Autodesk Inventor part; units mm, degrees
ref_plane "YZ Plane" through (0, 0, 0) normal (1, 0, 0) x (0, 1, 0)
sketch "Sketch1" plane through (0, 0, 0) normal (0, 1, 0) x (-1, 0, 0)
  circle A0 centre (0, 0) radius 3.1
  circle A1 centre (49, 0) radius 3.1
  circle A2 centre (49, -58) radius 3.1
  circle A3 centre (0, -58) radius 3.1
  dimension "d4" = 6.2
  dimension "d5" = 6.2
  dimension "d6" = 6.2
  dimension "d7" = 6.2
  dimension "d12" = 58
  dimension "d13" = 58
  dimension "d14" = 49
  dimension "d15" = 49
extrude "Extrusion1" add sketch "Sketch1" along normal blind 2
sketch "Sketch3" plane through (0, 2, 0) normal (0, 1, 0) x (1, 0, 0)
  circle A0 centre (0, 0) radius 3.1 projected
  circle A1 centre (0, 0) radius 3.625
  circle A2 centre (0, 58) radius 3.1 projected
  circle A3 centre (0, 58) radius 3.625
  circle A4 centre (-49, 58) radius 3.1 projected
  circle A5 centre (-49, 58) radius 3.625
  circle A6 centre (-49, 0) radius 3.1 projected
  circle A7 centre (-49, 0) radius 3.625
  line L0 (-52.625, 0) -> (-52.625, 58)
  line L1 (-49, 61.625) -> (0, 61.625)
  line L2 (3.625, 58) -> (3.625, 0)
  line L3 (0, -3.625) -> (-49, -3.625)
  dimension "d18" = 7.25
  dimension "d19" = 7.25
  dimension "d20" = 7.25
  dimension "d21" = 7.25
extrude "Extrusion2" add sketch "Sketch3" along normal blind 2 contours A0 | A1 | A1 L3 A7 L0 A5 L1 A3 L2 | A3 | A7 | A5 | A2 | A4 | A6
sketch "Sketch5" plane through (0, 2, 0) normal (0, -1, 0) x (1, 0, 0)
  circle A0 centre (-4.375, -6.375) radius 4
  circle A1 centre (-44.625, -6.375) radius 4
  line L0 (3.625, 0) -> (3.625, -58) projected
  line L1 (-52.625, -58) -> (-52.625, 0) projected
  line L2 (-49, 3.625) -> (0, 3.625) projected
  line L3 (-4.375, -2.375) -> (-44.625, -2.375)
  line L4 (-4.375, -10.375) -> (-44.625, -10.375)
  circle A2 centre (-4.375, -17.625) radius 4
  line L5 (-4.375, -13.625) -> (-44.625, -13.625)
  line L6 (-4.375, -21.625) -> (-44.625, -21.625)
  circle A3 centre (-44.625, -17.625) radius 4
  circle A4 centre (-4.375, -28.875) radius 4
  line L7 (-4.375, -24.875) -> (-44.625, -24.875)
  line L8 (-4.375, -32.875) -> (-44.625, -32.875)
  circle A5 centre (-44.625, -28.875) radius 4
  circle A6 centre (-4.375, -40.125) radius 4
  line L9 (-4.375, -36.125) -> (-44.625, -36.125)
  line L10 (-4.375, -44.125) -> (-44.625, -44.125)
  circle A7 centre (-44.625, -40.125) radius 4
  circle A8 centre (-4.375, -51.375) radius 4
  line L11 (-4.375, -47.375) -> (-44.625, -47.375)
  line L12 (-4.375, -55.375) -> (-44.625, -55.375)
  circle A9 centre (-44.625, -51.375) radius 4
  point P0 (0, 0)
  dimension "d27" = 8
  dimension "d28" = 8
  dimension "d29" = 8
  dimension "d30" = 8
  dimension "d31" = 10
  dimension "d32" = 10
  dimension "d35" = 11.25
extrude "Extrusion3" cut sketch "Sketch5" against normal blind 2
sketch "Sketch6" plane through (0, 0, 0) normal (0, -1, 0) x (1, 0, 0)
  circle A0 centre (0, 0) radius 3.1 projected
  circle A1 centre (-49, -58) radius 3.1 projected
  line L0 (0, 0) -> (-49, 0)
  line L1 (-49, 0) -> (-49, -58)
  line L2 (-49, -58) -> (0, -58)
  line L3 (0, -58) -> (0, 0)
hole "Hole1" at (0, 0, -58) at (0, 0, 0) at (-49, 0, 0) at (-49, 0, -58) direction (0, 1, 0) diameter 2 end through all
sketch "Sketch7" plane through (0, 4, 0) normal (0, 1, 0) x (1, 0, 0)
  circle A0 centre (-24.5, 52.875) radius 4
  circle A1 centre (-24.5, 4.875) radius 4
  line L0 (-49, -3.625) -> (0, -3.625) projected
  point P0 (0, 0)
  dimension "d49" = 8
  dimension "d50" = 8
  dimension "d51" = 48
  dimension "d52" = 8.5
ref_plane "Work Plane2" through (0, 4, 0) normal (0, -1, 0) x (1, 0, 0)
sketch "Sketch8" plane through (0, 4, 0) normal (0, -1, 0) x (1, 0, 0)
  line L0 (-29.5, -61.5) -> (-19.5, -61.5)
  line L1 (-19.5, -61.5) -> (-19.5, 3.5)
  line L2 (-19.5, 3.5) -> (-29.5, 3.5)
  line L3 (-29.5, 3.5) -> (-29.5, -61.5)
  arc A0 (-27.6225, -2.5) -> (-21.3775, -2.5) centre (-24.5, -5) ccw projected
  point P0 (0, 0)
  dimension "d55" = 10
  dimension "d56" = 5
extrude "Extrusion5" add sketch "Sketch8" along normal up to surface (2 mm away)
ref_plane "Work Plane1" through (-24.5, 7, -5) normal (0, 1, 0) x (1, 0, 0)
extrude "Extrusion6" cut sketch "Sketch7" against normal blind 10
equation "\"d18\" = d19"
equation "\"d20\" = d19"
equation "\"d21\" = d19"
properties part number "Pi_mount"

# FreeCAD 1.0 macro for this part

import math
import FreeCAD as App
import Part
import Sketcher
Q = App.Units.Quantity


def add_polygon(sketch, points):
    """Adds a closed chain of lines whose ends are joined by coincident constraints."""
    first, n = sketch.GeometryCount, len(points)
    for a, b in zip(points, points[1:] + points[:1]):
        sketch.addGeometry(Part.LineSegment(App.Vector(*a, 0), App.Vector(*b, 0)), False)
    for i in range(n):
        sketch.addConstraint(Sketcher.Constraint("Coincident", first + i, 2, first + (i + 1) % n, 1))

doc = App.newDocument("Part")
body = doc.addObject("PartDesign::Body", "Body")
body.AllowCompound = True

sketch1 = doc.addObject("Sketcher::SketchObject", "Sketch")
body.addObject(sketch1)
sketch1.AttachmentSupport = (doc.XZ_Plane, [""])
sketch1.MapMode = "FlatFace"
sketch1.addGeometry(Part.Circle(App.Vector(0, 0, 0), App.Vector(0, 0, 1), 3.1), False)
sketch1.addGeometry(Part.Circle(App.Vector(-49, 0, 0), App.Vector(0, 0, 1), 3.1), False)
sketch1.addGeometry(Part.Circle(App.Vector(-49, -58, 0), App.Vector(0, 0, 1), 3.1), False)
sketch1.addGeometry(Part.Circle(App.Vector(0, -58, 0), App.Vector(0, 0, 1), 3.1), False)
sketch1.addConstraint(Sketcher.Constraint("Coincident", 0, 3, -1, 1))
sketch1.addConstraint(Sketcher.Constraint("Equal", 0, 1))
sketch1.addConstraint(Sketcher.Constraint("Equal", 1, 2))
sketch1.addConstraint(Sketcher.Constraint("Equal", 2, 3))
sketch1.addConstraint(Sketcher.Constraint("PointOnObject", 1, 3, -1))
sketch1.addConstraint(Sketcher.Constraint("PointOnObject", 3, 3, -2))
sketch1.addConstraint(Sketcher.Constraint("Horizontal", 2, 3, 3, 3))
sketch1.addConstraint(Sketcher.Constraint("Vertical", 1, 3, 2, 3))
sketch1.addConstraint(Sketcher.Constraint("Diameter", 0, Q("6.2 mm")))
sketch1.addConstraint(Sketcher.Constraint("DistanceX", 1, 3, -1, 1, Q("49 mm")))
sketch1.addConstraint(Sketcher.Constraint("DistanceY", 2, 3, -1, 1, Q("58 mm")))
pad1 = doc.addObject("PartDesign::Pad", "Pad")
body.addObject(pad1)
pad1.Profile = sketch1
pad1.Length = 2
pad1.Reversed = True

sketch2 = doc.addObject("Sketcher::SketchObject", "Sketch001")
body.addObject(sketch2)
sketch2.AttachmentSupport = (doc.XZ_Plane, [""])
sketch2.MapMode = "FlatFace"
sketch2.AttachmentOffset = App.Placement(App.Vector(0, 0, -2), App.Rotation())
sketch2.addGeometry(Part.ArcOfCircle(Part.Circle(App.Vector(0, 0, 0), App.Vector(0, 0, 1), 3.625), math.radians(0), math.radians(90)), False)
sketch2.addGeometry(Part.LineSegment(App.Vector(3.625, 0, 0), App.Vector(3.625, -58, 0)), False)
sketch2.addGeometry(Part.ArcOfCircle(Part.Circle(App.Vector(0, -58, 0), App.Vector(0, 0, 1), 3.625), math.radians(-90), math.radians(0)), False)
sketch2.addGeometry(Part.LineSegment(App.Vector(0, -61.625, 0), App.Vector(-49, -61.625, 0)), False)
sketch2.addGeometry(Part.ArcOfCircle(Part.Circle(App.Vector(-49, -58, 0), App.Vector(0, 0, 1), 3.625), math.radians(180), math.radians(270)), False)
sketch2.addGeometry(Part.LineSegment(App.Vector(-52.625, -58, 0), App.Vector(-52.625, 0, 0)), False)
sketch2.addGeometry(Part.ArcOfCircle(Part.Circle(App.Vector(-49, 0, 0), App.Vector(0, 0, 1), 3.625), math.radians(90), math.radians(180)), False)
sketch2.addGeometry(Part.LineSegment(App.Vector(-49, 3.625, 0), App.Vector(0, 3.625, 0)), False)
sketch2.addConstraint(Sketcher.Constraint("Tangent", 0, 1, 1, 1))
sketch2.addConstraint(Sketcher.Constraint("Tangent", 1, 2, 2, 2))
sketch2.addConstraint(Sketcher.Constraint("Tangent", 2, 1, 3, 1))
sketch2.addConstraint(Sketcher.Constraint("Tangent", 3, 2, 4, 2))
sketch2.addConstraint(Sketcher.Constraint("Tangent", 4, 1, 5, 1))
sketch2.addConstraint(Sketcher.Constraint("Tangent", 5, 2, 6, 2))
sketch2.addConstraint(Sketcher.Constraint("Tangent", 6, 1, 7, 1))
sketch2.addConstraint(Sketcher.Constraint("Tangent", 7, 2, 0, 2))
sketch2.addConstraint(Sketcher.Constraint("Vertical", 1))
sketch2.addConstraint(Sketcher.Constraint("Horizontal", 3))
sketch2.addConstraint(Sketcher.Constraint("Vertical", 5))
sketch2.addConstraint(Sketcher.Constraint("Horizontal", 7))
sketch2.addConstraint(Sketcher.Constraint("Coincident", 0, 3, -1, 1))
sketch2.addConstraint(Sketcher.Constraint("Equal", 0, 2))
sketch2.addConstraint(Sketcher.Constraint("Equal", 2, 4))
sketch2.addConstraint(Sketcher.Constraint("Equal", 4, 6))
sketch2.addConstraint(Sketcher.Constraint("Radius", 0, Q("3.625 mm")))
sketch2.addConstraint(Sketcher.Constraint("DistanceX", 3, 2, 3, 1, Q("49 mm")))
sketch2.addConstraint(Sketcher.Constraint("DistanceY", 1, 2, 1, 1, Q("58 mm")))
pad2 = doc.addObject("PartDesign::Pad", "Pad001")
body.addObject(pad2)
pad2.Profile = sketch2
pad2.Length = 2
pad2.Reversed = True

sketch3 = doc.addObject("Sketcher::SketchObject", "Sketch002")
body.addObject(sketch3)
sketch3.AttachmentSupport = (doc.XZ_Plane, [""])
sketch3.MapMode = "FlatFace"
sketch3.AttachmentOffset = App.Placement(App.Vector(0, 0, -2), App.Rotation())
sketch3.addGeometry(Part.ArcOfCircle(Part.Circle(App.Vector(-4.375, -6.375, 0), App.Vector(0, 0, 1), 4), math.radians(-90), math.radians(90)), False)
sketch3.addGeometry(Part.LineSegment(App.Vector(-4.375, -2.375, 0), App.Vector(-44.625, -2.375, 0)), False)
sketch3.addGeometry(Part.ArcOfCircle(Part.Circle(App.Vector(-44.625, -6.375, 0), App.Vector(0, 0, 1), 4), math.radians(90), math.radians(270)), False)
sketch3.addGeometry(Part.LineSegment(App.Vector(-44.625, -10.375, 0), App.Vector(-4.375, -10.375, 0)), False)
sketch3.addGeometry(Part.ArcOfCircle(Part.Circle(App.Vector(-4.375, -17.625, 0), App.Vector(0, 0, 1), 4), math.radians(-90), math.radians(90)), False)
sketch3.addGeometry(Part.LineSegment(App.Vector(-4.375, -13.625, 0), App.Vector(-44.625, -13.625, 0)), False)
sketch3.addGeometry(Part.ArcOfCircle(Part.Circle(App.Vector(-44.625, -17.625, 0), App.Vector(0, 0, 1), 4), math.radians(90), math.radians(270)), False)
sketch3.addGeometry(Part.LineSegment(App.Vector(-44.625, -21.625, 0), App.Vector(-4.375, -21.625, 0)), False)
sketch3.addGeometry(Part.ArcOfCircle(Part.Circle(App.Vector(-4.375, -28.875, 0), App.Vector(0, 0, 1), 4), math.radians(-90), math.radians(90)), False)
sketch3.addGeometry(Part.LineSegment(App.Vector(-4.375, -24.875, 0), App.Vector(-44.625, -24.875, 0)), False)
sketch3.addGeometry(Part.ArcOfCircle(Part.Circle(App.Vector(-44.625, -28.875, 0), App.Vector(0, 0, 1), 4), math.radians(90), math.radians(270)), False)
sketch3.addGeometry(Part.LineSegment(App.Vector(-44.625, -32.875, 0), App.Vector(-4.375, -32.875, 0)), False)
sketch3.addGeometry(Part.ArcOfCircle(Part.Circle(App.Vector(-4.375, -40.125, 0), App.Vector(0, 0, 1), 4), math.radians(-90), math.radians(90)), False)
sketch3.addGeometry(Part.LineSegment(App.Vector(-4.375, -36.125, 0), App.Vector(-44.625, -36.125, 0)), False)
sketch3.addGeometry(Part.ArcOfCircle(Part.Circle(App.Vector(-44.625, -40.125, 0), App.Vector(0, 0, 1), 4), math.radians(90), math.radians(270)), False)
sketch3.addGeometry(Part.LineSegment(App.Vector(-44.625, -44.125, 0), App.Vector(-4.375, -44.125, 0)), False)
sketch3.addGeometry(Part.ArcOfCircle(Part.Circle(App.Vector(-4.375, -51.375, 0), App.Vector(0, 0, 1), 4), math.radians(-90), math.radians(90)), False)
sketch3.addGeometry(Part.LineSegment(App.Vector(-4.375, -47.375, 0), App.Vector(-44.625, -47.375, 0)), False)
sketch3.addGeometry(Part.ArcOfCircle(Part.Circle(App.Vector(-44.625, -51.375, 0), App.Vector(0, 0, 1), 4), math.radians(90), math.radians(270)), False)
sketch3.addGeometry(Part.LineSegment(App.Vector(-44.625, -55.375, 0), App.Vector(-4.375, -55.375, 0)), False)
sketch3.addConstraint(Sketcher.Constraint("Tangent", 0, 2, 1, 1))
sketch3.addConstraint(Sketcher.Constraint("Tangent", 1, 2, 2, 1))
sketch3.addConstraint(Sketcher.Constraint("Tangent", 2, 2, 3, 1))
sketch3.addConstraint(Sketcher.Constraint("Tangent", 3, 2, 0, 1))
sketch3.addConstraint(Sketcher.Constraint("Tangent", 4, 2, 5, 1))
sketch3.addConstraint(Sketcher.Constraint("Tangent", 5, 2, 6, 1))
sketch3.addConstraint(Sketcher.Constraint("Tangent", 6, 2, 7, 1))
sketch3.addConstraint(Sketcher.Constraint("Tangent", 7, 2, 4, 1))
sketch3.addConstraint(Sketcher.Constraint("Tangent", 8, 2, 9, 1))
sketch3.addConstraint(Sketcher.Constraint("Tangent", 9, 2, 10, 1))
sketch3.addConstraint(Sketcher.Constraint("Tangent", 10, 2, 11, 1))
sketch3.addConstraint(Sketcher.Constraint("Tangent", 11, 2, 8, 1))
sketch3.addConstraint(Sketcher.Constraint("Tangent", 12, 2, 13, 1))
sketch3.addConstraint(Sketcher.Constraint("Tangent", 13, 2, 14, 1))
sketch3.addConstraint(Sketcher.Constraint("Tangent", 14, 2, 15, 1))
sketch3.addConstraint(Sketcher.Constraint("Tangent", 15, 2, 12, 1))
sketch3.addConstraint(Sketcher.Constraint("Tangent", 16, 2, 17, 1))
sketch3.addConstraint(Sketcher.Constraint("Tangent", 17, 2, 18, 1))
sketch3.addConstraint(Sketcher.Constraint("Tangent", 18, 2, 19, 1))
sketch3.addConstraint(Sketcher.Constraint("Tangent", 19, 2, 16, 1))
sketch3.addConstraint(Sketcher.Constraint("Horizontal", 1))
sketch3.addConstraint(Sketcher.Constraint("Horizontal", 3))
sketch3.addConstraint(Sketcher.Constraint("Horizontal", 5))
sketch3.addConstraint(Sketcher.Constraint("Horizontal", 7))
sketch3.addConstraint(Sketcher.Constraint("Horizontal", 9))
sketch3.addConstraint(Sketcher.Constraint("Horizontal", 11))
sketch3.addConstraint(Sketcher.Constraint("Horizontal", 13))
sketch3.addConstraint(Sketcher.Constraint("Horizontal", 15))
sketch3.addConstraint(Sketcher.Constraint("Horizontal", 17))
sketch3.addConstraint(Sketcher.Constraint("Horizontal", 19))
sketch3.addConstraint(Sketcher.Constraint("Equal", 2, 4))
sketch3.addConstraint(Sketcher.Constraint("Equal", 6, 8))
sketch3.addConstraint(Sketcher.Constraint("Equal", 10, 12))
sketch3.addConstraint(Sketcher.Constraint("Equal", 14, 16))
sketch3.addConstraint(Sketcher.Constraint("Vertical", 0, 3, 4, 3))
sketch3.addConstraint(Sketcher.Constraint("Vertical", 2, 3, 6, 3))
sketch3.addConstraint(Sketcher.Constraint("Vertical", 4, 3, 8, 3))
sketch3.addConstraint(Sketcher.Constraint("Vertical", 6, 3, 10, 3))
sketch3.addConstraint(Sketcher.Constraint("Vertical", 8, 3, 12, 3))
sketch3.addConstraint(Sketcher.Constraint("Vertical", 10, 3, 14, 3))
sketch3.addConstraint(Sketcher.Constraint("Vertical", 12, 3, 16, 3))
sketch3.addConstraint(Sketcher.Constraint("Vertical", 14, 3, 18, 3))
sketch3.addConstraint(Sketcher.Constraint("Radius", 0, Q("4 mm")))
sketch3.addConstraint(Sketcher.Constraint("DistanceY", 4, 3, 0, 3, Q("11.25 mm")))
sketch3.addConstraint(Sketcher.Constraint("DistanceY", 8, 3, 4, 3, Q("11.25 mm")))
sketch3.addConstraint(Sketcher.Constraint("DistanceY", 12, 3, 8, 3, Q("11.25 mm")))
sketch3.addConstraint(Sketcher.Constraint("DistanceY", 16, 3, 12, 3, Q("11.25 mm")))
sketch3.addConstraint(Sketcher.Constraint("DistanceX", 1, 2, 1, 1, Q("40.25 mm")))
sketch3.addConstraint(Sketcher.Constraint("DistanceX", 0, 3, -1, 1, Q("4.375 mm")))
sketch3.addConstraint(Sketcher.Constraint("DistanceY", 0, 3, -1, 1, Q("6.375 mm")))
pocket1 = doc.addObject("PartDesign::Pocket", "Pocket")
body.addObject(pocket1)
pocket1.Profile = sketch3
pocket1.Length = 2

sketch4 = doc.addObject("Sketcher::SketchObject", "Sketch003")
body.addObject(sketch4)
sketch4.AttachmentSupport = (doc.XZ_Plane, [""])
sketch4.MapMode = "FlatFace"
sketch4.addGeometry(Part.Circle(App.Vector(0, -58, 0), App.Vector(0, 0, 1), 1), False)
sketch4.addGeometry(Part.Circle(App.Vector(0, 0, 0), App.Vector(0, 0, 1), 1), False)
sketch4.addGeometry(Part.Circle(App.Vector(-49, 0, 0), App.Vector(0, 0, 1), 1), False)
sketch4.addGeometry(Part.Circle(App.Vector(-49, -58, 0), App.Vector(0, 0, 1), 1), False)
sketch4.addConstraint(Sketcher.Constraint("Coincident", 1, 3, -1, 1))
sketch4.addConstraint(Sketcher.Constraint("Equal", 0, 1))
sketch4.addConstraint(Sketcher.Constraint("Equal", 1, 2))
sketch4.addConstraint(Sketcher.Constraint("Equal", 2, 3))
sketch4.addConstraint(Sketcher.Constraint("PointOnObject", 0, 3, -2))
sketch4.addConstraint(Sketcher.Constraint("PointOnObject", 2, 3, -1))
sketch4.addConstraint(Sketcher.Constraint("Horizontal", 0, 3, 3, 3))
sketch4.addConstraint(Sketcher.Constraint("Vertical", 2, 3, 3, 3))
sketch4.addConstraint(Sketcher.Constraint("Diameter", 0, Q("2 mm")))
sketch4.addConstraint(Sketcher.Constraint("DistanceY", 0, 3, -1, 1, Q("58 mm")))
sketch4.addConstraint(Sketcher.Constraint("DistanceX", 2, 3, -1, 1, Q("49 mm")))
doc.recompute()
hole = doc.addObject("PartDesign::Hole", "Hole")
body.addObject(hole)
hole.Profile = sketch4
hole.ThreadType = "None"
hole.Diameter = 2
hole.DepthType = "ThroughAll"

sketch5 = doc.addObject("Sketcher::SketchObject", "Sketch004")
body.addObject(sketch5)
sketch5.AttachmentSupport = (doc.XZ_Plane, [""])
sketch5.MapMode = "FlatFace"
sketch5.AttachmentOffset = App.Placement(App.Vector(0, 0, -4), App.Rotation())
add_polygon(sketch5, [(-29.5, 3.5), (-29.5, -61.5), (-19.5, -61.5), (-19.5, 3.5)])
sketch5.addConstraint(Sketcher.Constraint("Vertical", 0))
sketch5.addConstraint(Sketcher.Constraint("Horizontal", 1))
sketch5.addConstraint(Sketcher.Constraint("Vertical", 2))
sketch5.addConstraint(Sketcher.Constraint("Horizontal", 3))
sketch5.addConstraint(Sketcher.Constraint("DistanceX", 1, 1, 1, 2, Q("10 mm")))
sketch5.addConstraint(Sketcher.Constraint("DistanceY", 0, 2, 0, 1, Q("65 mm")))
sketch5.addConstraint(Sketcher.Constraint("DistanceX", 0, 2, -1, 1, Q("29.5 mm")))
sketch5.addConstraint(Sketcher.Constraint("DistanceY", 0, 2, -1, 1, Q("61.5 mm")))
pad3 = doc.addObject("PartDesign::Pad", "Pad002")
body.addObject(pad3)
pad3.Profile = sketch5
pad3.Length = 2

sketch6 = doc.addObject("Sketcher::SketchObject", "Sketch005")
body.addObject(sketch6)
sketch6.AttachmentSupport = (doc.XZ_Plane, [""])
sketch6.MapMode = "FlatFace"
sketch6.AttachmentOffset = App.Placement(App.Vector(0, 0, -4), App.Rotation())
sketch6.addGeometry(Part.Circle(App.Vector(-24.5, -52.875, 0), App.Vector(0, 0, 1), 4), False)
sketch6.addGeometry(Part.Circle(App.Vector(-24.5, -4.875, 0), App.Vector(0, 0, 1), 4), False)
sketch6.addConstraint(Sketcher.Constraint("Equal", 0, 1))
sketch6.addConstraint(Sketcher.Constraint("Vertical", 0, 3, 1, 3))
sketch6.addConstraint(Sketcher.Constraint("Diameter", 0, Q("8 mm")))
sketch6.addConstraint(Sketcher.Constraint("DistanceY", 0, 3, 1, 3, Q("48 mm")))
sketch6.addConstraint(Sketcher.Constraint("DistanceX", 0, 3, -1, 1, Q("24.5 mm")))
sketch6.addConstraint(Sketcher.Constraint("DistanceY", 0, 3, -1, 1, Q("52.875 mm")))
pocket2 = doc.addObject("PartDesign::Pocket", "Pocket001")
body.addObject(pocket2)
pocket2.Profile = sketch6
pocket2.Length = 10
pocket2.Reversed = True

doc.recompute()
